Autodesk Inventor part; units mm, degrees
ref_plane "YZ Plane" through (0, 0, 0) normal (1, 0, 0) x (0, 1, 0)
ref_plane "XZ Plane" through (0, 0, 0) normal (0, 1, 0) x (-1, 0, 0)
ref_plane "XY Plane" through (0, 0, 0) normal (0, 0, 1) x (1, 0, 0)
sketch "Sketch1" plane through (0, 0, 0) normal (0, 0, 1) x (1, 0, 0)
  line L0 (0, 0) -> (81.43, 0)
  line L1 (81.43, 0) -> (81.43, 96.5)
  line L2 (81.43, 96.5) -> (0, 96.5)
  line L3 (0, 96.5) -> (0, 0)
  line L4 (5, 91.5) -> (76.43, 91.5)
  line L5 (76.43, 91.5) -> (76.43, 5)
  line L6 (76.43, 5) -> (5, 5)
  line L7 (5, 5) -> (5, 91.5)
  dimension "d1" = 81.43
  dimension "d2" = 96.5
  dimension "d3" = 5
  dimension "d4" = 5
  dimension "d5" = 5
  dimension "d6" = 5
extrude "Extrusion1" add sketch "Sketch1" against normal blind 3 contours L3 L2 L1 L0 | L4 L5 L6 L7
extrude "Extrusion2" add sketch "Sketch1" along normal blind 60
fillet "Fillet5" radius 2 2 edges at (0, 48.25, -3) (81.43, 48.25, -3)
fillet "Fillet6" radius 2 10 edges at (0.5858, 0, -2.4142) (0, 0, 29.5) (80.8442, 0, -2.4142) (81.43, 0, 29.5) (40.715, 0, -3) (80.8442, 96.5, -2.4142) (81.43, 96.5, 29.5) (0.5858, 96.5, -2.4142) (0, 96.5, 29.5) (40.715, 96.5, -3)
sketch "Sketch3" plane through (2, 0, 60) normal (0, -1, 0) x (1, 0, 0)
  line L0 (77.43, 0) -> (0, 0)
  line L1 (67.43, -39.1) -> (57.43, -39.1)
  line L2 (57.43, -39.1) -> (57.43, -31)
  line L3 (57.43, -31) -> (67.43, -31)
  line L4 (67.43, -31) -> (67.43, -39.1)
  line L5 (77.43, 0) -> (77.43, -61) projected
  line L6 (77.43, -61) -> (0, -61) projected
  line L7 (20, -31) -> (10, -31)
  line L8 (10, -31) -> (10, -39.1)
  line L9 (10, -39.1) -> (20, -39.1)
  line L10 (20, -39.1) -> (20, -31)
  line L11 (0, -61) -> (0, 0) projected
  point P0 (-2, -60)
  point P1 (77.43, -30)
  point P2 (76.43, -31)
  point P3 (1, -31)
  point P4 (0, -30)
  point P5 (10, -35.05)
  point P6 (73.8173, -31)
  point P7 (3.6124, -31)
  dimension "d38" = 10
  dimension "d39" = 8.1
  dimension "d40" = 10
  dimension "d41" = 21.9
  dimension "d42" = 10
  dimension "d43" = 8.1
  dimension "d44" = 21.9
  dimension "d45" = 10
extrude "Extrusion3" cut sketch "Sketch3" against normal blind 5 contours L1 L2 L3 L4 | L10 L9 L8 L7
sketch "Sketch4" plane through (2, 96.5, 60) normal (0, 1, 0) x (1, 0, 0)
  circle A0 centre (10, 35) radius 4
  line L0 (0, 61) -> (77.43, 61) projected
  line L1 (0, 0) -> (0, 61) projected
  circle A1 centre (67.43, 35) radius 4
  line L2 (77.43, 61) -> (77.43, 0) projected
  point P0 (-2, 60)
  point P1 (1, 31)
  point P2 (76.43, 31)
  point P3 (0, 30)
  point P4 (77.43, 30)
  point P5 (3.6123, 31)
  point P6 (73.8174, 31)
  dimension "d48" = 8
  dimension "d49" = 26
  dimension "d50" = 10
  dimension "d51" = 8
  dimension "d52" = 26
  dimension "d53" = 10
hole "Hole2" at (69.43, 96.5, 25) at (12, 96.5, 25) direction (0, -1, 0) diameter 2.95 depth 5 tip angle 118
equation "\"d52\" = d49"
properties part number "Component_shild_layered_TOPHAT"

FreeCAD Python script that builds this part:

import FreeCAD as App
import Part
import Sketcher

V = App.Vector


def edges_at(feature, points):
    """Names of the edges that pass closest to the given points."""
    edges = feature.Shape.Edges
    near = lambda p: min(range(len(edges)), key=lambda i: edges[i].distToShape(Part.Vertex(*p))[0])
    return sorted({f"Edge{near(p) + 1}" for p in points})


def add_polygon(sketch, points):
    """Adds a closed chain of lines whose ends are joined by coincident constraints."""
    first, n = sketch.GeometryCount, len(points)
    for a, b in zip(points, points[1:] + points[:1]):
        sketch.addGeometry(Part.LineSegment(App.Vector(*a, 0), App.Vector(*b, 0)), False)
    for i in range(n):
        sketch.addConstraint(Sketcher.Constraint("Coincident", first + i, 2, first + (i + 1) % n, 1))

doc = App.newDocument("Part")
body = doc.addObject("PartDesign::Body", "Body")

# Sketch on XY plane
sketch1 = body.newObject("Sketcher::SketchObject", "Sketch")
sketch1.AttachmentSupport = (doc.getObject("XY_Plane"), [""])
sketch1.MapMode = "FlatFace"
add_polygon(sketch1, [(0, 96), (0, 0), (81, 0), (81, 96)])  # lines 0-3
sketch1.addConstraint([
    Sketcher.Constraint("Vertical", 0),
    Sketcher.Constraint("Horizontal", 1),
    Sketcher.Constraint("Vertical", 2),
    Sketcher.Constraint("Horizontal", 3),
    Sketcher.Constraint("Coincident", 0, 2, -1, 1),
    Sketcher.Constraint("DistanceY", 0, 2, 0, 1, 96.5),
    Sketcher.Constraint("DistanceX", 1, 1, 1, 2, 81.43),
])
pad1 = body.newObject("PartDesign::Pad", "Pad")
pad1.Profile = sketch1
pad1.Length = 3
pad1.Reversed = True

# Sketch on XY plane
sketch2 = body.newObject("Sketcher::SketchObject", "Sketch001")
sketch2.AttachmentSupport = (doc.getObject("XY_Plane"), [""])
sketch2.MapMode = "FlatFace"
add_polygon(sketch2, [(0, 96), (0, 0), (81, 0), (81, 96)])  # lines 0-3
add_polygon(sketch2, [(5, 5), (5, 92), (76, 92), (76, 5)])  # lines 4-7
sketch2.addConstraint([
    Sketcher.Constraint("Vertical", 0),
    Sketcher.Constraint("Horizontal", 1),
    Sketcher.Constraint("Vertical", 2),
    Sketcher.Constraint("Horizontal", 3),
    Sketcher.Constraint("Vertical", 4),
    Sketcher.Constraint("Horizontal", 5),
    Sketcher.Constraint("Vertical", 6),
    Sketcher.Constraint("Horizontal", 7),
    Sketcher.Constraint("Coincident", 0, 2, -1, 1),
    Sketcher.Constraint("DistanceY", 0, 2, 0, 1, 96.5),
    Sketcher.Constraint("DistanceX", -1, 1, 4, 2, 5.0),
    Sketcher.Constraint("DistanceY", -1, 1, 6, 2, 5.0),
    Sketcher.Constraint("DistanceY", 4, 2, 3, 2, 5.0),
    Sketcher.Constraint("DistanceX", 5, 2, 2, 2, 5.0),
    Sketcher.Constraint("DistanceX", 1, 1, 1, 2, 81.43),
])
pad2 = body.newObject("PartDesign::Pad", "Pad001")
pad2.Profile = sketch2
pad2.Length = 60
doc.recompute()

fillet = body.newObject("PartDesign::Fillet", "Fillet")
fillet.Base = (pad2, edges_at(pad2, [(0, 48.25, -3), (81.43, 48.25, -3)]))
fillet.Radius = 2
doc.recompute()

fillet2 = body.newObject("PartDesign::Fillet", "Fillet001")
fillet2.Base = (fillet, edges_at(fillet, [
    (0.586, 0, -2.414),
    (0, 0, 29.5),
    (80.844, 0, -2.414),
    (81.43, 0, 29.5),
    (40.715, 0, -3),
    (80.844, 96.5, -2.414),
    (81.43, 96.5, 29.5),
    (0.586, 96.5, -2.414),
    (0, 96.5, 29.5),
    (40.715, 96.5, -3),
]))
fillet2.Radius = 2

# Sketch on XZ plane
sketch3 = body.newObject("Sketcher::SketchObject", "Sketch002")
sketch3.AttachmentSupport = (doc.getObject("XZ_Plane"), [""])
sketch3.MapMode = "FlatFace"
add_polygon(sketch3, [(59, 21), (69, 21), (69, 29), (59, 29)])  # lines 0-3
add_polygon(sketch3, [(22, 21), (22, 29), (12, 29), (12, 21)])  # lines 4-7
sketch3.addConstraint([
    Sketcher.Constraint("Horizontal", 0),
    Sketcher.Constraint("Vertical", 1),
    Sketcher.Constraint("Horizontal", 2),
    Sketcher.Constraint("Vertical", 3),
    Sketcher.Constraint("Vertical", 4),
    Sketcher.Constraint("Horizontal", 5),
    Sketcher.Constraint("Vertical", 6),
    Sketcher.Constraint("Horizontal", 7),
    Sketcher.Constraint("Horizontal", 2, 2, 4, 2),
    Sketcher.Constraint("Horizontal", 3, 2, 6, 2),
    Sketcher.Constraint("Equal", 2, 5),
    Sketcher.Constraint("DistanceX", 0, 1, 0, 2, 10.0),
    Sketcher.Constraint("DistanceY", 1, 1, 1, 2, 8.1),
    Sketcher.Constraint("DistanceY", -1, 1, 1, 2, 29.0),
    Sketcher.Constraint("DistanceX", -1, 1, 4, 2, 22.0),
    Sketcher.Constraint("DistanceX", -1, 1, 0, 2, 69.43),
])
pocket1 = body.newObject("PartDesign::Pocket", "Pocket")
pocket1.Profile = sketch3
pocket1.Length = 5

# Sketch on XZ plane
sketch4 = body.newObject("Sketcher::SketchObject", "Sketch003")
sketch4.AttachmentSupport = (doc.getObject("XZ_Plane"), [""])
sketch4.MapMode = "FlatFace"
sketch4.AttachmentOffset = App.Placement(V(0, 0, -96.5), App.Rotation())
sketch4.addGeometry([
    Part.Circle(V(69.4, 25, 0), V(0, 0, 1), 1.5),
    Part.Circle(V(12, 25, 0), V(0, 0, 1), 1.5),
], False)
sketch4.addConstraint([
    Sketcher.Constraint("Equal", 0, 1),
    Sketcher.Constraint("Horizontal", 0, 3, 1, 3),
    Sketcher.Constraint("Diameter", 0, 2.95),
    Sketcher.Constraint("DistanceY", -1, 1, 0, 3, 25.0),
    Sketcher.Constraint("DistanceX", -1, 1, 1, 3, 12.0),
    Sketcher.Constraint("DistanceX", -1, 1, 0, 3, 69.43),
])
doc.recompute()
hole = body.newObject("PartDesign::Hole", "Hole")
hole.Profile = sketch4
hole.ThreadType = "None"
hole.Diameter = 2.95
hole.DepthType = "Dimension"
hole.Depth = 5
hole.DrillPoint = "Angled"
hole.DrillPointAngle = 118
hole.Reversed = True

doc.recompute()
